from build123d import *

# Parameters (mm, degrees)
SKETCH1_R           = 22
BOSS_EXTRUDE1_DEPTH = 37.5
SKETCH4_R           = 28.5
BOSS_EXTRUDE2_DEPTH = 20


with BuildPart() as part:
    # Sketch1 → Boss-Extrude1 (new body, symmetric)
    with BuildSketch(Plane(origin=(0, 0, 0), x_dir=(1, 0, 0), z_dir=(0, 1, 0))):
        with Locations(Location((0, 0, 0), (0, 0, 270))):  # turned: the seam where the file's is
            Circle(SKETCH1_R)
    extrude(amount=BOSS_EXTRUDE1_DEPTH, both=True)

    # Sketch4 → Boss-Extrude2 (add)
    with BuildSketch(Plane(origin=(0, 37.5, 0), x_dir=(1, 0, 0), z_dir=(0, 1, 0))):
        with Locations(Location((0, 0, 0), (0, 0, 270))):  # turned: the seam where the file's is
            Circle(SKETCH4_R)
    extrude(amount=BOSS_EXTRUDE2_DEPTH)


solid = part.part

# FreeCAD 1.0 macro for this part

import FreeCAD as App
import Part
import Sketcher
Q = App.Units.Quantity

doc = App.newDocument("Part")
params = doc.addObject("Spreadsheet::Sheet", "Params")
for row, (alias, value) in enumerate([
    ("sketch1_diameter", "44 mm"),
    ("pad1_length", "75 mm"),
    ("sketch2_diameter", "57 mm"),
    ("pad2_length", "20 mm"),
], start=1):
    params.set(f"A{row}", alias)
    params.set(f"B{row}", "=" + value)
    params.setAlias(f"B{row}", alias)

body = doc.addObject("PartDesign::Body", "Body")

sketch1 = body.newObject("Sketcher::SketchObject", "Sketch")
sketch1.AttachmentSupport = (doc.getObject("XZ_Plane"), [""])
sketch1.MapMode = "FlatFace"
sketch1.addGeometry(Part.Circle(App.Vector(0, 0, 0), App.Vector(0, 0, 1), 22), False)
sketch1.addConstraint(Sketcher.Constraint("Coincident", 0, 3, -1, 1))
sketch1.addConstraint(Sketcher.Constraint("Diameter", 0, Q("44 mm")))
sketch1.setExpression("Constraints[1]", "Params.sketch1_diameter")
pad1 = body.newObject("PartDesign::Pad", "Pad")
pad1.Profile = sketch1
pad1.setExpression("Length", "Params.pad1_length")
pad1.Midplane = True

sketch2 = body.newObject("Sketcher::SketchObject", "Sketch001")
sketch2.AttachmentSupport = (doc.getObject("XZ_Plane"), [""])
sketch2.MapMode = "FlatFace"
sketch2.AttachmentOffset = App.Placement(App.Vector(0, 0, -37.5), App.Rotation())
sketch2.addGeometry(Part.Circle(App.Vector(0, 0, 0), App.Vector(0, 0, 1), 28), False)
sketch2.addConstraint(Sketcher.Constraint("Coincident", 0, 3, -1, 1))
sketch2.addConstraint(Sketcher.Constraint("Diameter", 0, Q("57 mm")))
sketch2.setExpression("Constraints[1]", "Params.sketch2_diameter")
pad2 = body.newObject("PartDesign::Pad", "Pad001")
pad2.Profile = sketch2
pad2.setExpression("Length", "Params.pad2_length")
pad2.Reversed = True

doc.recompute()
